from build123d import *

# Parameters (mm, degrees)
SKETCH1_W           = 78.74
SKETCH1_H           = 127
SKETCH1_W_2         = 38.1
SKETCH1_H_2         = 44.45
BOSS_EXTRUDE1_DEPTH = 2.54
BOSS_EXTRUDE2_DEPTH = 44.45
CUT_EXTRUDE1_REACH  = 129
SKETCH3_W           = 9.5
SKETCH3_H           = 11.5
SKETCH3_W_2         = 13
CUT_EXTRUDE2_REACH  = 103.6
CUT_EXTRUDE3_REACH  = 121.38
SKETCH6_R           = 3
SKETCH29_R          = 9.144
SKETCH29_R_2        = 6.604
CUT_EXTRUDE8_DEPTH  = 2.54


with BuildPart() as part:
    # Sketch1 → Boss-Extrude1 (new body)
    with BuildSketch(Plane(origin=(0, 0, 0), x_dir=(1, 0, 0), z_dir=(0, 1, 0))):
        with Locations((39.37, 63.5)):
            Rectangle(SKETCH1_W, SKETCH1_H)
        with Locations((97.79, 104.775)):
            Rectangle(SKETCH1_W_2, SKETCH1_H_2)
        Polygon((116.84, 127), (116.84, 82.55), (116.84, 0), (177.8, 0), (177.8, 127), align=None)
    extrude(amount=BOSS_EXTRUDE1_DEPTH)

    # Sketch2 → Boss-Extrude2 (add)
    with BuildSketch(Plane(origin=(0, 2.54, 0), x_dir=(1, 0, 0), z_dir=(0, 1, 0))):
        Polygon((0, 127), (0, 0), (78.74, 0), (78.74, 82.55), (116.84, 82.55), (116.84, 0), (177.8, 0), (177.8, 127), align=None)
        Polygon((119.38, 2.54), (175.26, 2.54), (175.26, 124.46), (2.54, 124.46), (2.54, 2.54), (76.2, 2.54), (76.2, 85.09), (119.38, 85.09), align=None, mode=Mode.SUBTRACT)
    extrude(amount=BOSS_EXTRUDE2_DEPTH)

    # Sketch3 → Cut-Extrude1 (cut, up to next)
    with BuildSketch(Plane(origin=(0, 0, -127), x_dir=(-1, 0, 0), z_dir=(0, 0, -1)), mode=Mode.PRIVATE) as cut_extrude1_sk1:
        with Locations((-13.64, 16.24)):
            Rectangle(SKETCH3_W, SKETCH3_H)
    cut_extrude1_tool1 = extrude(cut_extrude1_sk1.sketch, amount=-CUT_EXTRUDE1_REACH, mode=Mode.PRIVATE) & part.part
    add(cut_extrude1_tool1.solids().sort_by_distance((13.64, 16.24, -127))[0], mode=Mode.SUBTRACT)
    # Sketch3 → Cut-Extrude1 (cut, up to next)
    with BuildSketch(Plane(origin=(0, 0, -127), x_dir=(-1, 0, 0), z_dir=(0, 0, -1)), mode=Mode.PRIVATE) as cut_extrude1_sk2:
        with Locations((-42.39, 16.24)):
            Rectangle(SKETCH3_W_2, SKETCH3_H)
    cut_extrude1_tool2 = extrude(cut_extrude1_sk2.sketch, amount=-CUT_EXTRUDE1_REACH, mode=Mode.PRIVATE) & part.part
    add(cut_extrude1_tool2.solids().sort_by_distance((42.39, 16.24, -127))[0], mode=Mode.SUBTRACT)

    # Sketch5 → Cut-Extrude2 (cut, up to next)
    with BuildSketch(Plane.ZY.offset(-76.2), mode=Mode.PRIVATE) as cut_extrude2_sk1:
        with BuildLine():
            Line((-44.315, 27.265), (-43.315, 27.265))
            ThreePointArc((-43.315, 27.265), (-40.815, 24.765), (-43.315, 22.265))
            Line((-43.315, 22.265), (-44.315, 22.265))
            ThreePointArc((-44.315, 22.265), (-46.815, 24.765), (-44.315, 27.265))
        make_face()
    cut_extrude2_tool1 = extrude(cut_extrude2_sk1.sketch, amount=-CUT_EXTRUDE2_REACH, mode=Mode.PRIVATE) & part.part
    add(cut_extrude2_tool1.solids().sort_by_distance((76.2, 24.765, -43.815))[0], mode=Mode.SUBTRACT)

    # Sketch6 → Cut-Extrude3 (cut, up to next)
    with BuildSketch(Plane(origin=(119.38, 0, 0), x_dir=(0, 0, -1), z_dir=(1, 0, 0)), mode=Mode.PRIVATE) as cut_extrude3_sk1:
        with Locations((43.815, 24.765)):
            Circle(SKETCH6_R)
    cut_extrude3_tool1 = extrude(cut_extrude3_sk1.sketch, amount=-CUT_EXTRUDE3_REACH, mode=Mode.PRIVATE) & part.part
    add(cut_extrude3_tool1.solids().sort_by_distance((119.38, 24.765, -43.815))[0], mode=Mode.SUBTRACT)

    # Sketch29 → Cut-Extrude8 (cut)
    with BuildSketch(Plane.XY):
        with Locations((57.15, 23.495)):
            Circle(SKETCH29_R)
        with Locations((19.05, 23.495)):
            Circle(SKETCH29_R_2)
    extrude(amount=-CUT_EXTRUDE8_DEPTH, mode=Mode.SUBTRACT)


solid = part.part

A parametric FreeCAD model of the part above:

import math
import FreeCAD as App
import Part
import Sketcher

V = App.Vector
Q = App.Units.Quantity


def add_polygon(sketch, points):
    """Adds a closed chain of lines whose ends are joined by coincident constraints."""
    first, n = sketch.GeometryCount, len(points)
    for a, b in zip(points, points[1:] + points[:1]):
        sketch.addGeometry(Part.LineSegment(App.Vector(*a, 0), App.Vector(*b, 0)), False)
    for i in range(n):
        sketch.addConstraint(Sketcher.Constraint("Coincident", first + i, 2, first + (i + 1) % n, 1))

doc = App.newDocument("Part")
body = doc.addObject("PartDesign::Body", "Body")

sketch1 = body.newObject("Sketcher::SketchObject", "Sketch")
sketch1.AttachmentSupport = (doc.getObject("XZ_Plane"), [""])
sketch1.MapMode = "FlatFace"
add_polygon(sketch1, [(0, -127), (0, 0), (78.74, 0), (78.74, -82.55), (116.84, -82.55), (116.84, 0), (177.8, 0), (177.8, -127)])
sketch1.addConstraint(Sketcher.Constraint("Vertical", 0))
sketch1.addConstraint(Sketcher.Constraint("Horizontal", 1))
sketch1.addConstraint(Sketcher.Constraint("Vertical", 2))
sketch1.addConstraint(Sketcher.Constraint("Horizontal", 3))
sketch1.addConstraint(Sketcher.Constraint("Vertical", 4))
sketch1.addConstraint(Sketcher.Constraint("Horizontal", 5))
sketch1.addConstraint(Sketcher.Constraint("Vertical", 6))
sketch1.addConstraint(Sketcher.Constraint("Horizontal", 7))
sketch1.addConstraint(Sketcher.Constraint("Coincident", 0, 2, -1, 1))
sketch1.addConstraint(Sketcher.Constraint("PointOnObject", 4, 2, -1))
sketch1.addConstraint(Sketcher.Constraint("DistanceX", 7, 2, 7, 1, Q("7 in")))
sketch1.addConstraint(Sketcher.Constraint("DistanceY", 0, 1, 0, 2, Q("5 in")))
sketch1.addConstraint(Sketcher.Constraint("DistanceX", 1, 1, 1, 2, Q("3.1 in")))
sketch1.addConstraint(Sketcher.Constraint("DistanceX", 3, 1, 3, 2, Q("1.5 in")))
sketch1.addConstraint(Sketcher.Constraint("DistanceY", 2, 2, 2, 1, Q("3.25 in")))
pad1 = body.newObject("PartDesign::Pad", "Pad")
pad1.Profile = sketch1
pad1.Length = Q("0.1 in")
pad1.Reversed = True

sketch2 = body.newObject("Sketcher::SketchObject", "Sketch001")
sketch2.AttachmentSupport = (doc.getObject("XZ_Plane"), [""])
sketch2.MapMode = "FlatFace"
sketch2.AttachmentOffset = App.Placement(V(0, 0, -0.1 * 25.4), App.Rotation())
add_polygon(sketch2, [(0, -127), (0, 0), (78.74, 0), (78.74, -82.55), (116.84, -82.55), (116.84, 0), (177.8, 0), (177.8, -127)])
add_polygon(sketch2, [(175.26, -2.54), (119.38, -2.54), (119.38, -85.09), (76.2, -85.09), (76.2, -2.54), (2.54, -2.54), (2.54, -124.46), (175.26, -124.46)])
sketch2.addConstraint(Sketcher.Constraint("Vertical", 0))
sketch2.addConstraint(Sketcher.Constraint("Horizontal", 1))
sketch2.addConstraint(Sketcher.Constraint("Vertical", 2))
sketch2.addConstraint(Sketcher.Constraint("Horizontal", 3))
sketch2.addConstraint(Sketcher.Constraint("Vertical", 4))
sketch2.addConstraint(Sketcher.Constraint("Horizontal", 5))
sketch2.addConstraint(Sketcher.Constraint("Vertical", 6))
sketch2.addConstraint(Sketcher.Constraint("Horizontal", 7))
sketch2.addConstraint(Sketcher.Constraint("Horizontal", 8))
sketch2.addConstraint(Sketcher.Constraint("Vertical", 9))
sketch2.addConstraint(Sketcher.Constraint("Horizontal", 10))
sketch2.addConstraint(Sketcher.Constraint("Vertical", 11))
sketch2.addConstraint(Sketcher.Constraint("Horizontal", 12))
sketch2.addConstraint(Sketcher.Constraint("Vertical", 13))
sketch2.addConstraint(Sketcher.Constraint("Horizontal", 14))
sketch2.addConstraint(Sketcher.Constraint("Vertical", 15))
sketch2.addConstraint(Sketcher.Constraint("Coincident", 0, 2, -1, 1))
sketch2.addConstraint(Sketcher.Constraint("PointOnObject", 4, 2, -1))
sketch2.addConstraint(Sketcher.Constraint("Horizontal", 8, 2, 11, 2))
sketch2.addConstraint(Sketcher.Constraint("Equal", 4, 9))
sketch2.addConstraint(Sketcher.Constraint("DistanceX", 7, 2, 7, 1, Q("7 in")))
sketch2.addConstraint(Sketcher.Constraint("DistanceY", 0, 1, 0, 2, Q("5 in")))
sketch2.addConstraint(Sketcher.Constraint("DistanceX", 1, 1, 1, 2, Q("3.1 in")))
sketch2.addConstraint(Sketcher.Constraint("DistanceX", 3, 1, 3, 2, Q("1.5 in")))
sketch2.addConstraint(Sketcher.Constraint("DistanceX", 8, 2, 8, 1, Q("2.2 in")))
sketch2.addConstraint(Sketcher.Constraint("DistanceX", 10, 2, 10, 1, Q("1.7 in")))
sketch2.addConstraint(Sketcher.Constraint("DistanceX", 12, 2, 12, 1, Q("2.9 in")))
sketch2.addConstraint(Sketcher.Constraint("DistanceY", 13, 2, 13, 1, Q("4.8 in")))
sketch2.addConstraint(Sketcher.Constraint("DistanceX", -1, 1, 10, 2, Q("3 in")))
sketch2.addConstraint(Sketcher.Constraint("DistanceY", 2, 2, 2, 1, Q("3.25 in")))
sketch2.addConstraint(Sketcher.Constraint("DistanceY", 8, 2, -1, 1, Q("0.1 in")))
pad2 = body.newObject("PartDesign::Pad", "Pad001")
pad2.Profile = sketch2
pad2.Length = Q("1.75 in")
pad2.Reversed = True

sketch3 = body.newObject("Sketcher::SketchObject", "Sketch002")
sketch3.AttachmentSupport = (doc.getObject("XY_Plane"), [""])
sketch3.MapMode = "FlatFace"
sketch3.AttachmentOffset = App.Placement(V(0, 0, -5 * 25.4), App.Rotation())
add_polygon(sketch3, [(18.39, 21.99), (18.39, 10.49), (8.89, 10.49), (8.89, 21.99)])
sketch3.addConstraint(Sketcher.Constraint("Vertical", 0))
sketch3.addConstraint(Sketcher.Constraint("Horizontal", 1))
sketch3.addConstraint(Sketcher.Constraint("Vertical", 2))
sketch3.addConstraint(Sketcher.Constraint("Horizontal", 3))
sketch3.addConstraint(Sketcher.Constraint("DistanceX", -1, 1, 1, 2, Q("0.35 in")))
sketch3.addConstraint(Sketcher.Constraint("DistanceX", 1, 2, 1, 1, Q("9.5 mm")))
sketch3.addConstraint(Sketcher.Constraint("DistanceY", 0, 2, 0, 1, Q("11.5 mm")))
sketch3.addConstraint(Sketcher.Constraint("DistanceY", -1, 1, 0, 2, Q("10.49 mm")))
pocket1 = body.newObject("PartDesign::Pocket", "Pocket")
pocket1.Profile = sketch3
pocket1.Type = "UpToFirst"
pocket1.Reversed = True

sketch4 = body.newObject("Sketcher::SketchObject", "Sketch003")
sketch4.AttachmentSupport = (doc.getObject("XY_Plane"), [""])
sketch4.MapMode = "FlatFace"
sketch4.AttachmentOffset = App.Placement(V(0, 0, -5 * 25.4), App.Rotation())
add_polygon(sketch4, [(48.89, 21.99), (48.89, 10.49), (35.89, 10.49), (35.89, 21.99)])
sketch4.addConstraint(Sketcher.Constraint("Vertical", 0))
sketch4.addConstraint(Sketcher.Constraint("Horizontal", 1))
sketch4.addConstraint(Sketcher.Constraint("Vertical", 2))
sketch4.addConstraint(Sketcher.Constraint("Horizontal", 3))
sketch4.addConstraint(Sketcher.Constraint("DistanceX", 1, 2, 1, 1, Q("13 mm")))
sketch4.addConstraint(Sketcher.Constraint("DistanceY", 0, 2, 0, 1, Q("11.5 mm")))
sketch4.addConstraint(Sketcher.Constraint("DistanceX", -1, 1, 0, 2, Q("48.89 mm")))
sketch4.addConstraint(Sketcher.Constraint("DistanceY", -1, 1, 0, 2, Q("10.49 mm")))
pocket2 = body.newObject("PartDesign::Pocket", "Pocket001")
pocket2.Profile = sketch4
pocket2.Type = "UpToFirst"
pocket2.Reversed = True

sketch5 = body.newObject("Sketcher::SketchObject", "Sketch004")
sketch5.AttachmentSupport = (doc.getObject("YZ_Plane"), [""])
sketch5.MapMode = "FlatFace"
sketch5.AttachmentOffset = App.Placement(V(0, 0, 3 * 25.4), App.Rotation())
sketch5.addGeometry(Part.LineSegment(V(27.265, -43.315, 0), V(27.265, -44.315, 0)), False)
sketch5.addGeometry(Part.ArcOfCircle(Part.Circle(V(24.765, -44.315, 0), V(0, 0, 1), 2.5), math.radians(180), math.radians(360)), False)
sketch5.addGeometry(Part.LineSegment(V(22.265, -44.315, 0), V(22.265, -43.315, 0)), False)
sketch5.addGeometry(Part.ArcOfCircle(Part.Circle(V(24.765, -43.315, 0), V(0, 0, 1), 2.5), math.radians(0), math.radians(180)), False)
sketch5.addConstraint(Sketcher.Constraint("Tangent", 0, 2, 1, 2))
sketch5.addConstraint(Sketcher.Constraint("Tangent", 1, 1, 2, 1))
sketch5.addConstraint(Sketcher.Constraint("Tangent", 2, 2, 3, 2))
sketch5.addConstraint(Sketcher.Constraint("Tangent", 3, 1, 0, 1))
sketch5.addConstraint(Sketcher.Constraint("Vertical", 0))
sketch5.addConstraint(Sketcher.Constraint("Vertical", 2))
sketch5.addConstraint(Sketcher.Constraint("Radius", 1, Q("2.5 mm")))
sketch5.addConstraint(Sketcher.Constraint("DistanceX", -1, 1, 1, 3, Q("0.975 in")))
sketch5.addConstraint(Sketcher.Constraint("DistanceY", 0, 2, 0, 1, Q("1 mm")))
sketch5.addConstraint(Sketcher.Constraint("DistanceY", 1, 3, -1, 1, Q("44.315 mm")))
pocket3 = body.newObject("PartDesign::Pocket", "Pocket002")
pocket3.Profile = sketch5
pocket3.Type = "UpToFirst"
pocket3.Reversed = True

sketch6 = body.newObject("Sketcher::SketchObject", "Sketch005")
sketch6.AttachmentSupport = (doc.getObject("YZ_Plane"), [""])
sketch6.MapMode = "FlatFace"
sketch6.AttachmentOffset = App.Placement(V(0, 0, 4.7 * 25.4), App.Rotation())
sketch6.addGeometry(Part.Circle(V(24.765, -43.815, 0), V(0, 0, 1), 3), False)
sketch6.addConstraint(Sketcher.Constraint("Diameter", 0, Q("6 mm")))
sketch6.addConstraint(Sketcher.Constraint("DistanceX", -1, 1, 0, 3, Q("0.975 in")))
sketch6.addConstraint(Sketcher.Constraint("DistanceY", 0, 3, -1, 1, Q("1.725 in")))
pocket4 = body.newObject("PartDesign::Pocket", "Pocket003")
pocket4.Profile = sketch6
pocket4.Type = "UpToFirst"

sketch7 = body.newObject("Sketcher::SketchObject", "Sketch006")
sketch7.AttachmentSupport = (doc.getObject("XY_Plane"), [""])
sketch7.MapMode = "FlatFace"
sketch7.addGeometry(Part.Circle(V(57.15, 23.495, 0), V(0, 0, 1), 9.144), False)
sketch7.addGeometry(Part.Circle(V(19.05, 23.495, 0), V(0, 0, 1), 6.604), False)
sketch7.addConstraint(Sketcher.Constraint("Horizontal", 0, 3, 1, 3))
sketch7.addConstraint(Sketcher.Constraint("Diameter", 0, Q("0.72 in")))
sketch7.addConstraint(Sketcher.Constraint("Diameter", 1, Q("0.52 in")))
sketch7.addConstraint(Sketcher.Constraint("DistanceX", 1, 3, 0, 3, Q("1.5 in")))
sketch7.addConstraint(Sketcher.Constraint("DistanceX", -1, 1, 0, 3, Q("2.25 in")))
sketch7.addConstraint(Sketcher.Constraint("DistanceY", -1, 1, 0, 3, Q("0.925 in")))
pocket5 = body.newObject("PartDesign::Pocket", "Pocket004")
pocket5.Profile = sketch7
pocket5.Length = Q("0.1 in")

doc.recompute()
